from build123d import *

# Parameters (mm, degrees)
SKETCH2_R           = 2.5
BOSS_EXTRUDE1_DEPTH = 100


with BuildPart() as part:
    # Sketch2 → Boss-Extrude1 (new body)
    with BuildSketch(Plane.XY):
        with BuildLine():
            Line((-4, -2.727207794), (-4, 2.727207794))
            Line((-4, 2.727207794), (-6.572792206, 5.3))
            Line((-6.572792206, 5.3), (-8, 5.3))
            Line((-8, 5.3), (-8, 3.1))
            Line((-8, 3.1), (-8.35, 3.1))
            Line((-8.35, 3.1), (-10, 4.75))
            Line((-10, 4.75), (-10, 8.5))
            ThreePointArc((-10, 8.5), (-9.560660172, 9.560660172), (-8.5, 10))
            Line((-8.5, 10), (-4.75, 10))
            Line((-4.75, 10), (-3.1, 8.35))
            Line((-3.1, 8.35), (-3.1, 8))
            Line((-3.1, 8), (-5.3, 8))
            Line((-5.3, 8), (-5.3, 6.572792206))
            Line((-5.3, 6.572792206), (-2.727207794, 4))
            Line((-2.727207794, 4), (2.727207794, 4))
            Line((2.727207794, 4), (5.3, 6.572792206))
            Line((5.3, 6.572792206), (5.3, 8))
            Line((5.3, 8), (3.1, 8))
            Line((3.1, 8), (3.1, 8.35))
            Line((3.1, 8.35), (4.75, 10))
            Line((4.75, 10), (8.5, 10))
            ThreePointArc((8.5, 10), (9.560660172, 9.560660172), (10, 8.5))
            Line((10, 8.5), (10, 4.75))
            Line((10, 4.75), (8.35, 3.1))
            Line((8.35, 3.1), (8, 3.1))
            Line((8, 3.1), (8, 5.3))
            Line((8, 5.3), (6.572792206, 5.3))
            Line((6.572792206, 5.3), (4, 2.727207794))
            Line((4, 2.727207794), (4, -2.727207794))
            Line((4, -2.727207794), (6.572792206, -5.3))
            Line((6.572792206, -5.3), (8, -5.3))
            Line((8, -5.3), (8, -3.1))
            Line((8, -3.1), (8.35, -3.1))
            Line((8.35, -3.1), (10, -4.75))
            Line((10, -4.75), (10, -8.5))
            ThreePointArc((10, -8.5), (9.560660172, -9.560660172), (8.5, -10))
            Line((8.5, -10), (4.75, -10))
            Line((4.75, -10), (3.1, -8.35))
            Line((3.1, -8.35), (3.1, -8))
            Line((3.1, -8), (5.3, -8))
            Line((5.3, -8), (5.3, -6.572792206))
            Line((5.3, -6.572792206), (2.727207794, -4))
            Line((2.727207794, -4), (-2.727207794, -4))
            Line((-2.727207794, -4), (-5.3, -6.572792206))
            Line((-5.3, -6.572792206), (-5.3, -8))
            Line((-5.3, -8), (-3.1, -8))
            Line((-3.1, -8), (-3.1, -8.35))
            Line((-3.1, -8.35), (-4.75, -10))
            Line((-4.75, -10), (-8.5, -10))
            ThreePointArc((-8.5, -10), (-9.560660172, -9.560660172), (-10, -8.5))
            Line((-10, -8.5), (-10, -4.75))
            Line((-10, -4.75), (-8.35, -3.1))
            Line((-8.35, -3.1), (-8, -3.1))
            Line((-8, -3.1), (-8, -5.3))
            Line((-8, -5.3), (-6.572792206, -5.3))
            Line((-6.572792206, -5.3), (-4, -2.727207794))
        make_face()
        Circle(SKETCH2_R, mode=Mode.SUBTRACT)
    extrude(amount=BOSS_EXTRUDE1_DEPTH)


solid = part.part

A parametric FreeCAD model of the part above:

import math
import FreeCAD as App
import Part
import Sketcher
from FreeCAD import Vector
Q = App.Units.Quantity

doc = App.newDocument("Part")
body = doc.addObject("PartDesign::Body", "Body")

# Sketch on XY plane
sketch1 = body.newObject("Sketcher::SketchObject", "Sketch")
sketch1.AttachmentSupport = (doc.getObject("XY_Plane"), [""])
sketch1.MapMode = "FlatFace"
sketch1.addGeometry([
    Part.LineSegment(Vector(-4, 2.73, 0), Vector(-4, -2.73, 0)),  # 0
    Part.LineSegment(Vector(-4, -2.73, 0), Vector(-6.57, -5.3, 0)),  # 1
    Part.LineSegment(Vector(-6.57, -5.3, 0), Vector(-8, -5.3, 0)),  # 2
    Part.LineSegment(Vector(-8, -5.3, 0), Vector(-8, -3.1, 0)),  # 3
    Part.LineSegment(Vector(-8, -3.1, 0), Vector(-8.35, -3.1, 0)),  # 4
    Part.LineSegment(Vector(-8.35, -3.1, 0), Vector(-10, -4.75, 0)),  # 5
    Part.LineSegment(Vector(-10, -4.75, 0), Vector(-10, -8.5, 0)),  # 6
    Part.ArcOfCircle(Part.Circle(Vector(-8.5, -8.5, 0), Vector(0, 0, 1), 1.5), math.radians(180), math.radians(270)),  # 7
    Part.LineSegment(Vector(-8.5, -10, 0), Vector(-4.75, -10, 0)),  # 8
    Part.LineSegment(Vector(-4.75, -10, 0), Vector(-3.1, -8.35, 0)),  # 9
    Part.LineSegment(Vector(-3.1, -8.35, 0), Vector(-3.1, -8, 0)),  # 10
    Part.LineSegment(Vector(-3.1, -8, 0), Vector(-5.3, -8, 0)),  # 11
    Part.LineSegment(Vector(-5.3, -8, 0), Vector(-5.3, -6.57, 0)),  # 12
    Part.LineSegment(Vector(-5.3, -6.57, 0), Vector(-2.73, -4, 0)),  # 13
    Part.LineSegment(Vector(-2.73, -4, 0), Vector(2.73, -4, 0)),  # 14
    Part.LineSegment(Vector(2.73, -4, 0), Vector(5.3, -6.57, 0)),  # 15
    Part.LineSegment(Vector(5.3, -6.57, 0), Vector(5.3, -8, 0)),  # 16
    Part.LineSegment(Vector(5.3, -8, 0), Vector(3.1, -8, 0)),  # 17
    Part.LineSegment(Vector(3.1, -8, 0), Vector(3.1, -8.35, 0)),  # 18
    Part.LineSegment(Vector(3.1, -8.35, 0), Vector(4.75, -10, 0)),  # 19
    Part.LineSegment(Vector(4.75, -10, 0), Vector(8.5, -10, 0)),  # 20
    Part.ArcOfCircle(Part.Circle(Vector(8.5, -8.5, 0), Vector(0, 0, 1), 1.5), math.radians(-90), math.radians(0)),  # 21
    Part.LineSegment(Vector(10, -8.5, 0), Vector(10, -4.75, 0)),  # 22
    Part.LineSegment(Vector(10, -4.75, 0), Vector(8.35, -3.1, 0)),  # 23
    Part.LineSegment(Vector(8.35, -3.1, 0), Vector(8, -3.1, 0)),  # 24
    Part.LineSegment(Vector(8, -3.1, 0), Vector(8, -5.3, 0)),  # 25
    Part.LineSegment(Vector(8, -5.3, 0), Vector(6.57, -5.3, 0)),  # 26
    Part.LineSegment(Vector(6.57, -5.3, 0), Vector(4, -2.73, 0)),  # 27
    Part.LineSegment(Vector(4, -2.73, 0), Vector(4, 2.73, 0)),  # 28
    Part.LineSegment(Vector(4, 2.73, 0), Vector(6.57, 5.3, 0)),  # 29
    Part.LineSegment(Vector(6.57, 5.3, 0), Vector(8, 5.3, 0)),  # 30
    Part.LineSegment(Vector(8, 5.3, 0), Vector(8, 3.1, 0)),  # 31
    Part.LineSegment(Vector(8, 3.1, 0), Vector(8.35, 3.1, 0)),  # 32
    Part.LineSegment(Vector(8.35, 3.1, 0), Vector(10, 4.75, 0)),  # 33
    Part.LineSegment(Vector(10, 4.75, 0), Vector(10, 8.5, 0)),  # 34
    Part.ArcOfCircle(Part.Circle(Vector(8.5, 8.5, 0), Vector(0, 0, 1), 1.5), math.radians(0), math.radians(90)),  # 35
    Part.LineSegment(Vector(8.5, 10, 0), Vector(4.75, 10, 0)),  # 36
    Part.LineSegment(Vector(4.75, 10, 0), Vector(3.1, 8.35, 0)),  # 37
    Part.LineSegment(Vector(3.1, 8.35, 0), Vector(3.1, 8, 0)),  # 38
    Part.LineSegment(Vector(3.1, 8, 0), Vector(5.3, 8, 0)),  # 39
    Part.LineSegment(Vector(5.3, 8, 0), Vector(5.3, 6.57, 0)),  # 40
    Part.LineSegment(Vector(5.3, 6.57, 0), Vector(2.73, 4, 0)),  # 41
    Part.LineSegment(Vector(2.73, 4, 0), Vector(-2.73, 4, 0)),  # 42
    Part.LineSegment(Vector(-2.73, 4, 0), Vector(-5.3, 6.57, 0)),  # 43
    Part.LineSegment(Vector(-5.3, 6.57, 0), Vector(-5.3, 8, 0)),  # 44
    Part.LineSegment(Vector(-5.3, 8, 0), Vector(-3.1, 8, 0)),  # 45
    Part.LineSegment(Vector(-3.1, 8, 0), Vector(-3.1, 8.35, 0)),  # 46
    Part.LineSegment(Vector(-3.1, 8.35, 0), Vector(-4.75, 10, 0)),  # 47
    Part.LineSegment(Vector(-4.75, 10, 0), Vector(-8.5, 10, 0)),  # 48
    Part.ArcOfCircle(Part.Circle(Vector(-8.5, 8.5, 0), Vector(0, 0, 1), 1.5), math.radians(90), math.radians(180)),  # 49
    Part.LineSegment(Vector(-10, 8.5, 0), Vector(-10, 4.75, 0)),  # 50
    Part.LineSegment(Vector(-10, 4.75, 0), Vector(-8.35, 3.1, 0)),  # 51
    Part.LineSegment(Vector(-8.35, 3.1, 0), Vector(-8, 3.1, 0)),  # 52
    Part.LineSegment(Vector(-8, 3.1, 0), Vector(-8, 5.3, 0)),  # 53
    Part.LineSegment(Vector(-8, 5.3, 0), Vector(-6.57, 5.3, 0)),  # 54
    Part.LineSegment(Vector(-6.57, 5.3, 0), Vector(-4, 2.73, 0)),  # 55
    Part.Circle(Vector(0, 0, 0), Vector(0, 0, 1), 2.5),  # 56
], False)
sketch1.addConstraint([
    Sketcher.Constraint("Coincident", 0, 2, 1, 1),
    Sketcher.Constraint("Coincident", 1, 2, 2, 1),
    Sketcher.Constraint("Coincident", 2, 2, 3, 1),
    Sketcher.Constraint("Coincident", 3, 2, 4, 1),
    Sketcher.Constraint("Coincident", 4, 2, 5, 1),
    Sketcher.Constraint("Coincident", 5, 2, 6, 1),
    Sketcher.Constraint("Tangent", 6, 2, 7, 1),
    Sketcher.Constraint("Tangent", 7, 2, 8, 1),
    Sketcher.Constraint("Coincident", 8, 2, 9, 1),
    Sketcher.Constraint("Coincident", 9, 2, 10, 1),
    Sketcher.Constraint("Coincident", 10, 2, 11, 1),
    Sketcher.Constraint("Coincident", 11, 2, 12, 1),
    Sketcher.Constraint("Coincident", 12, 2, 13, 1),
    Sketcher.Constraint("Coincident", 13, 2, 14, 1),
    Sketcher.Constraint("Coincident", 14, 2, 15, 1),
    Sketcher.Constraint("Coincident", 15, 2, 16, 1),
    Sketcher.Constraint("Coincident", 16, 2, 17, 1),
    Sketcher.Constraint("Coincident", 17, 2, 18, 1),
    Sketcher.Constraint("Coincident", 18, 2, 19, 1),
    Sketcher.Constraint("Coincident", 19, 2, 20, 1),
    Sketcher.Constraint("Tangent", 20, 2, 21, 1),
    Sketcher.Constraint("Tangent", 21, 2, 22, 1),
    Sketcher.Constraint("Coincident", 22, 2, 23, 1),
    Sketcher.Constraint("Coincident", 23, 2, 24, 1),
    Sketcher.Constraint("Coincident", 24, 2, 25, 1),
    Sketcher.Constraint("Coincident", 25, 2, 26, 1),
    Sketcher.Constraint("Coincident", 26, 2, 27, 1),
    Sketcher.Constraint("Coincident", 27, 2, 28, 1),
    Sketcher.Constraint("Coincident", 28, 2, 29, 1),
    Sketcher.Constraint("Coincident", 29, 2, 30, 1),
    Sketcher.Constraint("Coincident", 30, 2, 31, 1),
    Sketcher.Constraint("Coincident", 31, 2, 32, 1),
    Sketcher.Constraint("Coincident", 32, 2, 33, 1),
    Sketcher.Constraint("Coincident", 33, 2, 34, 1),
    Sketcher.Constraint("Tangent", 34, 2, 35, 1),
    Sketcher.Constraint("Tangent", 35, 2, 36, 1),
    Sketcher.Constraint("Coincident", 36, 2, 37, 1),
    Sketcher.Constraint("Coincident", 37, 2, 38, 1),
    Sketcher.Constraint("Coincident", 38, 2, 39, 1),
    Sketcher.Constraint("Coincident", 39, 2, 40, 1),
    Sketcher.Constraint("Coincident", 40, 2, 41, 1),
    Sketcher.Constraint("Coincident", 41, 2, 42, 1),
    Sketcher.Constraint("Coincident", 42, 2, 43, 1),
    Sketcher.Constraint("Coincident", 43, 2, 44, 1),
    Sketcher.Constraint("Coincident", 44, 2, 45, 1),
    Sketcher.Constraint("Coincident", 45, 2, 46, 1),
    Sketcher.Constraint("Coincident", 46, 2, 47, 1),
    Sketcher.Constraint("Coincident", 47, 2, 48, 1),
    Sketcher.Constraint("Tangent", 48, 2, 49, 1),
    Sketcher.Constraint("Tangent", 49, 2, 50, 1),
    Sketcher.Constraint("Coincident", 50, 2, 51, 1),
    Sketcher.Constraint("Coincident", 51, 2, 52, 1),
    Sketcher.Constraint("Coincident", 52, 2, 53, 1),
    Sketcher.Constraint("Coincident", 53, 2, 54, 1),
    Sketcher.Constraint("Coincident", 54, 2, 55, 1),
    Sketcher.Constraint("Coincident", 55, 2, 0, 1),
    Sketcher.Constraint("Vertical", 0),
    Sketcher.Constraint("Horizontal", 2),
    Sketcher.Constraint("Vertical", 3),
    Sketcher.Constraint("Horizontal", 4),
    Sketcher.Constraint("Vertical", 6),
    Sketcher.Constraint("Horizontal", 8),
    Sketcher.Constraint("Vertical", 10),
    Sketcher.Constraint("Horizontal", 11),
    Sketcher.Constraint("Vertical", 12),
    Sketcher.Constraint("Horizontal", 14),
    Sketcher.Constraint("Vertical", 16),
    Sketcher.Constraint("Horizontal", 17),
    Sketcher.Constraint("Vertical", 18),
    Sketcher.Constraint("Horizontal", 20),
    Sketcher.Constraint("Vertical", 22),
    Sketcher.Constraint("Horizontal", 24),
    Sketcher.Constraint("Vertical", 25),
    Sketcher.Constraint("Horizontal", 26),
    Sketcher.Constraint("Vertical", 28),
    Sketcher.Constraint("Horizontal", 30),
    Sketcher.Constraint("Vertical", 31),
    Sketcher.Constraint("Horizontal", 32),
    Sketcher.Constraint("Vertical", 34),
    Sketcher.Constraint("Horizontal", 36),
    Sketcher.Constraint("Vertical", 38),
    Sketcher.Constraint("Horizontal", 39),
    Sketcher.Constraint("Vertical", 40),
    Sketcher.Constraint("Horizontal", 42),
    Sketcher.Constraint("Vertical", 44),
    Sketcher.Constraint("Horizontal", 45),
    Sketcher.Constraint("Vertical", 46),
    Sketcher.Constraint("Horizontal", 48),
    Sketcher.Constraint("Vertical", 50),
    Sketcher.Constraint("Horizontal", 52),
    Sketcher.Constraint("Vertical", 53),
    Sketcher.Constraint("Horizontal", 54),
    Sketcher.Constraint("Coincident", 56, 3, -1, 1),
    Sketcher.Constraint("Equal", 7, 21),
    Sketcher.Constraint("Equal", 21, 35),
    Sketcher.Constraint("Equal", 35, 49),
    Sketcher.Constraint("Symmetric", 7, 3, 35, 3, -1, 1),
    Sketcher.Constraint("Symmetric", 21, 3, 49, 3, -1, 1),
    Sketcher.Constraint("Symmetric", 0, 2, 28, 2, -1, 1),
    Sketcher.Constraint("Symmetric", 1, 2, 29, 2, -1, 1),
    Sketcher.Constraint("Symmetric", 3, 2, 31, 2, -1, 1),
    Sketcher.Constraint("Symmetric", 9, 2, 37, 2, -1, 1),
    Sketcher.Constraint("Symmetric", 11, 2, 39, 2, -1, 1),
    Sketcher.Constraint("Symmetric", 13, 2, 41, 2, -1, 1),
    Sketcher.Constraint("Symmetric", 15, 2, 43, 2, -1, 1),
    Sketcher.Constraint("Symmetric", 17, 2, 45, 2, -1, 1),
    Sketcher.Constraint("Symmetric", 23, 2, 51, 2, -1, 1),
    Sketcher.Constraint("Symmetric", 25, 2, 53, 2, -1, 1),
    Sketcher.Constraint("Symmetric", 7, 3, 21, 3, -2),
    Sketcher.Constraint("Symmetric", 12, 2, 15, 2, -2),
    Sketcher.Constraint("Symmetric", 10, 2, 17, 2, -2),
    Sketcher.Constraint("Symmetric", 4, 2, 23, 2, -2),
    Sketcher.Constraint("Symmetric", 2, 2, 25, 2, -2),
    Sketcher.Constraint("Parallel", 1, 5),
    Sketcher.Constraint("Parallel", 5, 9),
    Sketcher.Constraint("Parallel", 9, 13),
    Sketcher.Constraint("Perpendicular", 13, 15),
    Sketcher.Constraint("Parallel", 15, 19),
    Sketcher.Constraint("Parallel", 19, 23),
    Sketcher.Constraint("Parallel", 23, 27),
    Sketcher.Constraint("Parallel", 29, 33),
    Sketcher.Constraint("Parallel", 33, 37),
    Sketcher.Constraint("Parallel", 37, 41),
    Sketcher.Constraint("Perpendicular", 41, 43),
    Sketcher.Constraint("Parallel", 43, 47),
    Sketcher.Constraint("Parallel", 47, 51),
    Sketcher.Constraint("Parallel", 51, 55),
    Sketcher.Constraint("Horizontal", 9, 2, 18, 2),
    Sketcher.Constraint("Horizontal", 5, 2, 22, 2),
    Sketcher.Constraint("Horizontal", 0, 2, 27, 2),
    Sketcher.Constraint("Horizontal", 37, 2, 46, 2),
    Sketcher.Constraint("Horizontal", 33, 2, 50, 2),
    Sketcher.Constraint("Horizontal", 28, 2, 55, 2),
    Sketcher.Constraint("Equal", 42, 0),
    Sketcher.Constraint("Equal", 45, 3),
    Sketcher.Constraint("Equal", 48, 6),
    Sketcher.Constraint("Equal", 52, 10),
    Sketcher.Constraint("Equal", 54, 12),
    Sketcher.Constraint("Equal", 5, 9),
    Sketcher.Constraint("Equal", 1, 13),
    Sketcher.Constraint("Diameter", 56, Q("5 mm")),
    Sketcher.Constraint("Radius", 7, Q("1.5 mm")),
    Sketcher.Constraint("DistanceX", 11, 2, 11, 1, Q("2.2 mm")),
    Sketcher.Constraint("DistanceX", 0, 2, -1, 1, Q("4 mm")),
    Sketcher.Constraint("DistanceX", 2, 2, -1, 1, Q("8 mm")),
    Sketcher.Constraint("DistanceX", 5, 2, -1, 1, Q("10 mm")),
    Sketcher.Constraint("DistanceX", 4, 2, 4, 1, Q("0.35 mm")),
    Sketcher.Constraint("DistanceX", 8, 1, 8, 2, Q("3.75 mm")),
    Sketcher.Constraint("DistanceX", 2, 2, 2, 1, Q("1.427208 mm")),
])
pad1 = body.newObject("PartDesign::Pad", "Pad")
pad1.Profile = sketch1
pad1.Length = 100

doc.recompute()
